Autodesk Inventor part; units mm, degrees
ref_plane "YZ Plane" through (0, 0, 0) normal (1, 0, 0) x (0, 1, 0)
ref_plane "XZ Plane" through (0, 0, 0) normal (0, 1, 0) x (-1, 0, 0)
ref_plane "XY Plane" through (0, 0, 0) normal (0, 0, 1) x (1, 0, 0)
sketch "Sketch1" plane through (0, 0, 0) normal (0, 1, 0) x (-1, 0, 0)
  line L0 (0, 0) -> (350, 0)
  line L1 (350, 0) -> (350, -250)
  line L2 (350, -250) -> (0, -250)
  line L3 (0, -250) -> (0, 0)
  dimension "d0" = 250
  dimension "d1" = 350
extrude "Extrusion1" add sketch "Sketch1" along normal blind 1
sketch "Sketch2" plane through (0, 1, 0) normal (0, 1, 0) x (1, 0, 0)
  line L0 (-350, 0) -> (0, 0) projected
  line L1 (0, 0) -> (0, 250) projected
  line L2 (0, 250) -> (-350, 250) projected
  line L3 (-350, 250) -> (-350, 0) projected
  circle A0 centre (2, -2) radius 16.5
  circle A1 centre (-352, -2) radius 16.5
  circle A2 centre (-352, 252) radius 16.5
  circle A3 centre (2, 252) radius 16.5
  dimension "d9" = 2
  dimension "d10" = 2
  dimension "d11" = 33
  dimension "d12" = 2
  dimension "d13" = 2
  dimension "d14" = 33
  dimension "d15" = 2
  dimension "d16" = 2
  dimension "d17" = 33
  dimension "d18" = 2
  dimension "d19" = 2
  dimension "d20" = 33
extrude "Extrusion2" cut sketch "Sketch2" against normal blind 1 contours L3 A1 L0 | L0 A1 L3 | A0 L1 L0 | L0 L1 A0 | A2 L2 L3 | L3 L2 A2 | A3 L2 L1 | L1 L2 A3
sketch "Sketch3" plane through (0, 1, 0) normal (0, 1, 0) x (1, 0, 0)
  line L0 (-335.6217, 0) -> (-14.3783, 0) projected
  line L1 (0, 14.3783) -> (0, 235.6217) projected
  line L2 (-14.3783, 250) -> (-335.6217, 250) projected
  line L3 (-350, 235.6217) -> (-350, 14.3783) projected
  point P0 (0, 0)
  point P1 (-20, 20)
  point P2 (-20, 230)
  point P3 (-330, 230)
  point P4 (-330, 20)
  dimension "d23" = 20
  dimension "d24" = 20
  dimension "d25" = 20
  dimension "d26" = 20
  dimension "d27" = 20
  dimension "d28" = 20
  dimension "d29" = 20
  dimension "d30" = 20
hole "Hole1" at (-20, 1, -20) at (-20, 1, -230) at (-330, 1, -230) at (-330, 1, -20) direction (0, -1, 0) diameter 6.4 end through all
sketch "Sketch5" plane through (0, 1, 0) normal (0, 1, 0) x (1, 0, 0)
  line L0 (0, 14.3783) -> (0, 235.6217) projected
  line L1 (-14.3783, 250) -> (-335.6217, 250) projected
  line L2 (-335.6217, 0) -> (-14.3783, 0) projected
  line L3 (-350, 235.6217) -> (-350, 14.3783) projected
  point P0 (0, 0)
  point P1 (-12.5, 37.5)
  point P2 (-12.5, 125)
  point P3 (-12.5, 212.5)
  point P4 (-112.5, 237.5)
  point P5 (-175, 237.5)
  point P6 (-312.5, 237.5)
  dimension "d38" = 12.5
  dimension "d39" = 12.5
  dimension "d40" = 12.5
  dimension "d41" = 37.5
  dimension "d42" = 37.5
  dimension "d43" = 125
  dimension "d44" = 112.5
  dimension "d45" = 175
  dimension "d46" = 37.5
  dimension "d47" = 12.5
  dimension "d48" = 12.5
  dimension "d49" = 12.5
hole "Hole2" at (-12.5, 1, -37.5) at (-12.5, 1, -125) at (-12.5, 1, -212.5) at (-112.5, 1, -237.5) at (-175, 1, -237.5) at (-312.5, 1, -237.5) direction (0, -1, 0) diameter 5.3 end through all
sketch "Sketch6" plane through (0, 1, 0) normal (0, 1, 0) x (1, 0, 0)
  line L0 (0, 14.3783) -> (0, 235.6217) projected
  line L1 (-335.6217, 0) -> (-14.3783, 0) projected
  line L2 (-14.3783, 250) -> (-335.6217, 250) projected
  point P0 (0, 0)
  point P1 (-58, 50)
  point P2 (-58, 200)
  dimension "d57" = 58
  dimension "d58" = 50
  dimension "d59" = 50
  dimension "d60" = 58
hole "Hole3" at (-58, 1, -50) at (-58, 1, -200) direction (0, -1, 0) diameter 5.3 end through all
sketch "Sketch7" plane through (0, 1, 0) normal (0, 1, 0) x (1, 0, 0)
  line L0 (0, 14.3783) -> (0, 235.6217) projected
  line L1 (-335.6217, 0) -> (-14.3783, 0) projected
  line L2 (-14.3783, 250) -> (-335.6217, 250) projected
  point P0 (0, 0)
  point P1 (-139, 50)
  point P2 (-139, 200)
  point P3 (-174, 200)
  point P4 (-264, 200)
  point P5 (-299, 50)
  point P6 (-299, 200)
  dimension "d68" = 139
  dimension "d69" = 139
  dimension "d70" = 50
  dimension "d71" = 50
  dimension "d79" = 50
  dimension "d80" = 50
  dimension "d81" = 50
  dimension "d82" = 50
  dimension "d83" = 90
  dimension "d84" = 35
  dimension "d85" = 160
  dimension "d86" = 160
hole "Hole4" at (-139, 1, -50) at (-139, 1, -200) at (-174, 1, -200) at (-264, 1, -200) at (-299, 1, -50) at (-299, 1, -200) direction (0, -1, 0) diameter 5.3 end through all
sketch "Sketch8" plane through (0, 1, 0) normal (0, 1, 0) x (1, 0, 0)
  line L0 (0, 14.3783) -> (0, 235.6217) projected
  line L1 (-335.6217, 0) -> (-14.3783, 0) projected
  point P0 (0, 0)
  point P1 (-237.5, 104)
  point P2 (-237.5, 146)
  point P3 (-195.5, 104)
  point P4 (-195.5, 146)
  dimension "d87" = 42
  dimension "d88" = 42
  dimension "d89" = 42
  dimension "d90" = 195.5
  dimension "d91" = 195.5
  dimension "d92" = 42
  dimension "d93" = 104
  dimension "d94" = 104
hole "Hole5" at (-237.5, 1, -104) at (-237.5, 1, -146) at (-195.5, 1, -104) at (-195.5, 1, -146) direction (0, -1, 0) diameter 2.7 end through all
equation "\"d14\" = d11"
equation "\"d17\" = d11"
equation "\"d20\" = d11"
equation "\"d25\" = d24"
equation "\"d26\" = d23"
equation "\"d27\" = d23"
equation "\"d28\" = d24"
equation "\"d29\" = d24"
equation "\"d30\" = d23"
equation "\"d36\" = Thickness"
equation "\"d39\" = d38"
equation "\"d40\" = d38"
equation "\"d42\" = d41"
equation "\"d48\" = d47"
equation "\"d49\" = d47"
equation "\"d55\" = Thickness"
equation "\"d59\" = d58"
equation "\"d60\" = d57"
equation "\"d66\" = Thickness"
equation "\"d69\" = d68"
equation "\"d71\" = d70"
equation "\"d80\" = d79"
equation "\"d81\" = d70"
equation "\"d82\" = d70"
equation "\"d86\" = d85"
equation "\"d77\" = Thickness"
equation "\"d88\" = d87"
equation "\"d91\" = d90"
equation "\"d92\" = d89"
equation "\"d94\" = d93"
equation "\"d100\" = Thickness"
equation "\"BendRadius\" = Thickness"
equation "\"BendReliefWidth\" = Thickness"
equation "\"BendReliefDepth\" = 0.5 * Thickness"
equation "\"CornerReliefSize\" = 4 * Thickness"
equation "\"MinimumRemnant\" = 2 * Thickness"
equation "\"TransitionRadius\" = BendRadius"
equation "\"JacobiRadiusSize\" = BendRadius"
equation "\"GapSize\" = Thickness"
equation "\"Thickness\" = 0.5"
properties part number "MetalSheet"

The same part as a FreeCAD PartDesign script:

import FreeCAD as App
import Part
import Sketcher
from FreeCAD import Vector

doc = App.newDocument("Part")
body = doc.addObject("PartDesign::Body", "Body")

sketch1 = body.newObject("Sketcher::SketchObject", "Sketch")
sketch1.AttachmentSupport = (doc.getObject("XZ_Plane"), [""])
sketch1.MapMode = "FlatFace"
sketch1.addGeometry(Part.LineSegment(Vector(-350, 0, 0), Vector(0, 0, 0)), False)
sketch1.addGeometry(Part.LineSegment(Vector(0, 0, 0), Vector(0, -250, 0)), False)
sketch1.addGeometry(Part.LineSegment(Vector(0, -250, 0), Vector(-350, -250, 0)), False)
sketch1.addGeometry(Part.LineSegment(Vector(-350, -250, 0), Vector(-350, 0, 0)), False)
sketch1.addConstraint(Sketcher.Constraint("Coincident", 0, 2, 1, 1))
sketch1.addConstraint(Sketcher.Constraint("Coincident", 1, 2, 2, 1))
sketch1.addConstraint(Sketcher.Constraint("Coincident", 2, 2, 3, 1))
sketch1.addConstraint(Sketcher.Constraint("Coincident", 3, 2, 0, 1))
sketch1.addConstraint(Sketcher.Constraint("Horizontal", 0))
sketch1.addConstraint(Sketcher.Constraint("Vertical", 1))
sketch1.addConstraint(Sketcher.Constraint("Horizontal", 2))
sketch1.addConstraint(Sketcher.Constraint("Vertical", 3))
sketch1.addConstraint(Sketcher.Constraint("Coincident", 0, 2, -1, 1))
sketch1.addConstraint(Sketcher.Constraint("DistanceX", 0, 1, 0, 2, 350.0))
sketch1.addConstraint(Sketcher.Constraint("DistanceY", 1, 2, 1, 1, 250.0))
pad1 = body.newObject("PartDesign::Pad", "Pad")
pad1.Profile = sketch1
pad1.Length = 1
pad1.Reversed = True

sketch2 = body.newObject("Sketcher::SketchObject", "Sketch001")
sketch2.AttachmentSupport = (doc.getObject("XZ_Plane"), [""])
sketch2.MapMode = "FlatFace"
sketch2.AttachmentOffset = App.Placement(Vector(0, 0, -1), App.Rotation())
sketch2.addGeometry(Part.Circle(Vector(-352, 2, 0), Vector(0, 0, 1), 16.5), False)
sketch2.addGeometry(Part.Circle(Vector(2, 2, 0), Vector(0, 0, 1), 16.5), False)
sketch2.addGeometry(Part.Circle(Vector(-352, -252, 0), Vector(0, 0, 1), 16.5), False)
sketch2.addGeometry(Part.Circle(Vector(2, -252, 0), Vector(0, 0, 1), 16.5), False)
sketch2.addConstraint(Sketcher.Constraint("Equal", 0, 1))
sketch2.addConstraint(Sketcher.Constraint("Equal", 1, 2))
sketch2.addConstraint(Sketcher.Constraint("Equal", 2, 3))
sketch2.addConstraint(Sketcher.Constraint("Horizontal", 0, 3, 1, 3))
sketch2.addConstraint(Sketcher.Constraint("Horizontal", 2, 3, 3, 3))
sketch2.addConstraint(Sketcher.Constraint("Vertical", 0, 3, 2, 3))
sketch2.addConstraint(Sketcher.Constraint("Vertical", 1, 3, 3, 3))
sketch2.addConstraint(Sketcher.Constraint("Diameter", 0, 33.0))
sketch2.addConstraint(Sketcher.Constraint("DistanceY", -1, 1, 0, 3, 2.0))
sketch2.addConstraint(Sketcher.Constraint("DistanceX", -1, 1, 1, 3, 2.0))
sketch2.addConstraint(Sketcher.Constraint("DistanceX", 0, 3, -1, 1, 352.0))
sketch2.addConstraint(Sketcher.Constraint("DistanceY", 2, 3, -1, 1, 252.0))
pocket1 = body.newObject("PartDesign::Pocket", "Pocket")
pocket1.Profile = sketch2
pocket1.Length = 1
pocket1.Reversed = True

sketch3 = body.newObject("Sketcher::SketchObject", "Sketch002")
sketch3.AttachmentSupport = (doc.getObject("XZ_Plane"), [""])
sketch3.MapMode = "FlatFace"
sketch3.AttachmentOffset = App.Placement(Vector(0, 0, -1), App.Rotation())
sketch3.addGeometry(Part.Circle(Vector(-20, -20, 0), Vector(0, 0, 1), 3.2), False)
sketch3.addGeometry(Part.Circle(Vector(-20, -230, 0), Vector(0, 0, 1), 3.2), False)
sketch3.addGeometry(Part.Circle(Vector(-330, -230, 0), Vector(0, 0, 1), 3.2), False)
sketch3.addGeometry(Part.Circle(Vector(-330, -20, 0), Vector(0, 0, 1), 3.2), False)
sketch3.addConstraint(Sketcher.Constraint("Equal", 0, 1))
sketch3.addConstraint(Sketcher.Constraint("Equal", 1, 2))
sketch3.addConstraint(Sketcher.Constraint("Equal", 2, 3))
sketch3.addConstraint(Sketcher.Constraint("Horizontal", 1, 3, 2, 3))
sketch3.addConstraint(Sketcher.Constraint("Horizontal", 0, 3, 3, 3))
sketch3.addConstraint(Sketcher.Constraint("Vertical", 0, 3, 1, 3))
sketch3.addConstraint(Sketcher.Constraint("Vertical", 2, 3, 3, 3))
sketch3.addConstraint(Sketcher.Constraint("Diameter", 0, 6.4))
sketch3.addConstraint(Sketcher.Constraint("DistanceX", 0, 3, -1, 1, 20.0))
sketch3.addConstraint(Sketcher.Constraint("DistanceY", 0, 3, -1, 1, 20.0))
sketch3.addConstraint(Sketcher.Constraint("DistanceY", 1, 3, -1, 1, 230.0))
sketch3.addConstraint(Sketcher.Constraint("DistanceX", 2, 3, -1, 1, 330.0))
doc.recompute()
hole = body.newObject("PartDesign::Hole", "Hole")
hole.Profile = sketch3
hole.ThreadType = "None"
hole.Diameter = 6.4
hole.DepthType = "ThroughAll"
hole.Reversed = True

sketch4 = body.newObject("Sketcher::SketchObject", "Sketch003")
sketch4.AttachmentSupport = (doc.getObject("XZ_Plane"), [""])
sketch4.MapMode = "FlatFace"
sketch4.AttachmentOffset = App.Placement(Vector(0, 0, -1), App.Rotation())
sketch4.addGeometry(Part.Circle(Vector(-12.5, -37.5, 0), Vector(0, 0, 1), 2.65), False)
sketch4.addGeometry(Part.Circle(Vector(-12.5, -125, 0), Vector(0, 0, 1), 2.65), False)
sketch4.addGeometry(Part.Circle(Vector(-12.5, -212.5, 0), Vector(0, 0, 1), 2.65), False)
sketch4.addGeometry(Part.Circle(Vector(-112.5, -237.5, 0), Vector(0, 0, 1), 2.65), False)
sketch4.addGeometry(Part.Circle(Vector(-175, -237.5, 0), Vector(0, 0, 1), 2.65), False)
sketch4.addGeometry(Part.Circle(Vector(-312.5, -237.5, 0), Vector(0, 0, 1), 2.65), False)
sketch4.addConstraint(Sketcher.Constraint("Equal", 0, 1))
sketch4.addConstraint(Sketcher.Constraint("Equal", 1, 2))
sketch4.addConstraint(Sketcher.Constraint("Equal", 2, 3))
sketch4.addConstraint(Sketcher.Constraint("Equal", 3, 4))
sketch4.addConstraint(Sketcher.Constraint("Equal", 4, 5))
sketch4.addConstraint(Sketcher.Constraint("Horizontal", 3, 3, 4, 3))
sketch4.addConstraint(Sketcher.Constraint("Horizontal", 4, 3, 5, 3))
sketch4.addConstraint(Sketcher.Constraint("Vertical", 0, 3, 1, 3))
sketch4.addConstraint(Sketcher.Constraint("Vertical", 1, 3, 2, 3))
sketch4.addConstraint(Sketcher.Constraint("Diameter", 0, 5.3))
sketch4.addConstraint(Sketcher.Constraint("DistanceY", 1, 3, -1, 1, 125.0))
sketch4.addConstraint(Sketcher.Constraint("DistanceX", 4, 3, -1, 1, 175.0))
sketch4.addConstraint(Sketcher.Constraint("DistanceY", 2, 3, 0, 3, 175.0))
sketch4.addConstraint(Sketcher.Constraint("DistanceX", 3, 3, 2, 3, 100.0))
sketch4.addConstraint(Sketcher.Constraint("DistanceY", 3, 3, 2, 3, 25.0))
sketch4.addConstraint(Sketcher.Constraint("DistanceX", 5, 3, 3, 3, 200.0))
sketch4.addConstraint(Sketcher.Constraint("DistanceX", 0, 3, -1, 1, 12.5))
sketch4.addConstraint(Sketcher.Constraint("DistanceY", 0, 3, -1, 1, 37.5))
doc.recompute()
hole2 = body.newObject("PartDesign::Hole", "Hole001")
hole2.Profile = sketch4
hole2.ThreadType = "None"
hole2.Diameter = 5.3
hole2.DepthType = "ThroughAll"
hole2.Reversed = True

sketch5 = body.newObject("Sketcher::SketchObject", "Sketch004")
sketch5.AttachmentSupport = (doc.getObject("XZ_Plane"), [""])
sketch5.MapMode = "FlatFace"
sketch5.AttachmentOffset = App.Placement(Vector(0, 0, -1), App.Rotation())
sketch5.addGeometry(Part.Circle(Vector(-58, -50, 0), Vector(0, 0, 1), 2.65), False)
sketch5.addGeometry(Part.Circle(Vector(-58, -200, 0), Vector(0, 0, 1), 2.65), False)
sketch5.addConstraint(Sketcher.Constraint("Equal", 0, 1))
sketch5.addConstraint(Sketcher.Constraint("Vertical", 0, 3, 1, 3))
sketch5.addConstraint(Sketcher.Constraint("Diameter", 0, 5.3))
sketch5.addConstraint(Sketcher.Constraint("DistanceX", 0, 3, -1, 1, 58.0))
sketch5.addConstraint(Sketcher.Constraint("DistanceY", 0, 3, -1, 1, 50.0))
sketch5.addConstraint(Sketcher.Constraint("DistanceY", 1, 3, -1, 1, 200.0))
doc.recompute()
hole3 = body.newObject("PartDesign::Hole", "Hole002")
hole3.Profile = sketch5
hole3.ThreadType = "None"
hole3.Diameter = 5.3
hole3.DepthType = "ThroughAll"
hole3.Reversed = True

sketch6 = body.newObject("Sketcher::SketchObject", "Sketch005")
sketch6.AttachmentSupport = (doc.getObject("XZ_Plane"), [""])
sketch6.MapMode = "FlatFace"
sketch6.AttachmentOffset = App.Placement(Vector(0, 0, -1), App.Rotation())
sketch6.addGeometry(Part.Circle(Vector(-139, -50, 0), Vector(0, 0, 1), 2.65), False)
sketch6.addGeometry(Part.Circle(Vector(-139, -200, 0), Vector(0, 0, 1), 2.65), False)
sketch6.addGeometry(Part.Circle(Vector(-174, -200, 0), Vector(0, 0, 1), 2.65), False)
sketch6.addGeometry(Part.Circle(Vector(-264, -200, 0), Vector(0, 0, 1), 2.65), False)
sketch6.addGeometry(Part.Circle(Vector(-299, -50, 0), Vector(0, 0, 1), 2.65), False)
sketch6.addGeometry(Part.Circle(Vector(-299, -200, 0), Vector(0, 0, 1), 2.65), False)
sketch6.addConstraint(Sketcher.Constraint("Equal", 0, 1))
sketch6.addConstraint(Sketcher.Constraint("Equal", 1, 2))
sketch6.addConstraint(Sketcher.Constraint("Equal", 2, 3))
sketch6.addConstraint(Sketcher.Constraint("Equal", 3, 4))
sketch6.addConstraint(Sketcher.Constraint("Equal", 4, 5))
sketch6.addConstraint(Sketcher.Constraint("Horizontal", 1, 3, 2, 3))
sketch6.addConstraint(Sketcher.Constraint("Horizontal", 2, 3, 3, 3))
sketch6.addConstraint(Sketcher.Constraint("Horizontal", 0, 3, 4, 3))
sketch6.addConstraint(Sketcher.Constraint("Horizontal", 3, 3, 5, 3))
sketch6.addConstraint(Sketcher.Constraint("Vertical", 0, 3, 1, 3))
sketch6.addConstraint(Sketcher.Constraint("Vertical", 4, 3, 5, 3))
sketch6.addConstraint(Sketcher.Constraint("Diameter", 0, 5.3))
sketch6.addConstraint(Sketcher.Constraint("DistanceX", 0, 3, -1, 1, 139.0))
sketch6.addConstraint(Sketcher.Constraint("DistanceY", 0, 3, -1, 1, 50.0))
sketch6.addConstraint(Sketcher.Constraint("DistanceY", 1, 3, -1, 1, 200.0))
sketch6.addConstraint(Sketcher.Constraint("DistanceX", 2, 3, -1, 1, 174.0))
sketch6.addConstraint(Sketcher.Constraint("DistanceX", 3, 3, -1, 1, 264.0))
sketch6.addConstraint(Sketcher.Constraint("DistanceX", 4, 3, -1, 1, 299.0))
doc.recompute()
hole4 = body.newObject("PartDesign::Hole", "Hole003")
hole4.Profile = sketch6
hole4.ThreadType = "None"
hole4.Diameter = 5.3
hole4.DepthType = "ThroughAll"
hole4.Reversed = True

sketch7 = body.newObject("Sketcher::SketchObject", "Sketch006")
sketch7.AttachmentSupport = (doc.getObject("XZ_Plane"), [""])
sketch7.MapMode = "FlatFace"
sketch7.AttachmentOffset = App.Placement(Vector(0, 0, -1), App.Rotation())
sketch7.addGeometry(Part.Circle(Vector(-237.5, -104, 0), Vector(0, 0, 1), 1.35), False)
sketch7.addGeometry(Part.Circle(Vector(-237.5, -146, 0), Vector(0, 0, 1), 1.35), False)
sketch7.addGeometry(Part.Circle(Vector(-195.5, -104, 0), Vector(0, 0, 1), 1.35), False)
sketch7.addGeometry(Part.Circle(Vector(-195.5, -146, 0), Vector(0, 0, 1), 1.35), False)
sketch7.addConstraint(Sketcher.Constraint("Equal", 0, 1))
sketch7.addConstraint(Sketcher.Constraint("Equal", 1, 2))
sketch7.addConstraint(Sketcher.Constraint("Equal", 2, 3))
sketch7.addConstraint(Sketcher.Constraint("Horizontal", 0, 3, 2, 3))
sketch7.addConstraint(Sketcher.Constraint("Horizontal", 1, 3, 3, 3))
sketch7.addConstraint(Sketcher.Constraint("Vertical", 0, 3, 1, 3))
sketch7.addConstraint(Sketcher.Constraint("Vertical", 2, 3, 3, 3))
sketch7.addConstraint(Sketcher.Constraint("Diameter", 0, 2.7))
sketch7.addConstraint(Sketcher.Constraint("DistanceY", 0, 3, -1, 1, 104.0))
sketch7.addConstraint(Sketcher.Constraint("DistanceY", 1, 3, -1, 1, 146.0))
sketch7.addConstraint(Sketcher.Constraint("DistanceX", 0, 3, 2, 3, 42.0))
sketch7.addConstraint(Sketcher.Constraint("DistanceX", 0, 3, -1, 1, 237.5))
doc.recompute()
hole5 = body.newObject("PartDesign::Hole", "Hole004")
hole5.Profile = sketch7
hole5.ThreadType = "None"
hole5.Diameter = 2.7
hole5.DepthType = "ThroughAll"
hole5.Reversed = True

doc.recompute()
